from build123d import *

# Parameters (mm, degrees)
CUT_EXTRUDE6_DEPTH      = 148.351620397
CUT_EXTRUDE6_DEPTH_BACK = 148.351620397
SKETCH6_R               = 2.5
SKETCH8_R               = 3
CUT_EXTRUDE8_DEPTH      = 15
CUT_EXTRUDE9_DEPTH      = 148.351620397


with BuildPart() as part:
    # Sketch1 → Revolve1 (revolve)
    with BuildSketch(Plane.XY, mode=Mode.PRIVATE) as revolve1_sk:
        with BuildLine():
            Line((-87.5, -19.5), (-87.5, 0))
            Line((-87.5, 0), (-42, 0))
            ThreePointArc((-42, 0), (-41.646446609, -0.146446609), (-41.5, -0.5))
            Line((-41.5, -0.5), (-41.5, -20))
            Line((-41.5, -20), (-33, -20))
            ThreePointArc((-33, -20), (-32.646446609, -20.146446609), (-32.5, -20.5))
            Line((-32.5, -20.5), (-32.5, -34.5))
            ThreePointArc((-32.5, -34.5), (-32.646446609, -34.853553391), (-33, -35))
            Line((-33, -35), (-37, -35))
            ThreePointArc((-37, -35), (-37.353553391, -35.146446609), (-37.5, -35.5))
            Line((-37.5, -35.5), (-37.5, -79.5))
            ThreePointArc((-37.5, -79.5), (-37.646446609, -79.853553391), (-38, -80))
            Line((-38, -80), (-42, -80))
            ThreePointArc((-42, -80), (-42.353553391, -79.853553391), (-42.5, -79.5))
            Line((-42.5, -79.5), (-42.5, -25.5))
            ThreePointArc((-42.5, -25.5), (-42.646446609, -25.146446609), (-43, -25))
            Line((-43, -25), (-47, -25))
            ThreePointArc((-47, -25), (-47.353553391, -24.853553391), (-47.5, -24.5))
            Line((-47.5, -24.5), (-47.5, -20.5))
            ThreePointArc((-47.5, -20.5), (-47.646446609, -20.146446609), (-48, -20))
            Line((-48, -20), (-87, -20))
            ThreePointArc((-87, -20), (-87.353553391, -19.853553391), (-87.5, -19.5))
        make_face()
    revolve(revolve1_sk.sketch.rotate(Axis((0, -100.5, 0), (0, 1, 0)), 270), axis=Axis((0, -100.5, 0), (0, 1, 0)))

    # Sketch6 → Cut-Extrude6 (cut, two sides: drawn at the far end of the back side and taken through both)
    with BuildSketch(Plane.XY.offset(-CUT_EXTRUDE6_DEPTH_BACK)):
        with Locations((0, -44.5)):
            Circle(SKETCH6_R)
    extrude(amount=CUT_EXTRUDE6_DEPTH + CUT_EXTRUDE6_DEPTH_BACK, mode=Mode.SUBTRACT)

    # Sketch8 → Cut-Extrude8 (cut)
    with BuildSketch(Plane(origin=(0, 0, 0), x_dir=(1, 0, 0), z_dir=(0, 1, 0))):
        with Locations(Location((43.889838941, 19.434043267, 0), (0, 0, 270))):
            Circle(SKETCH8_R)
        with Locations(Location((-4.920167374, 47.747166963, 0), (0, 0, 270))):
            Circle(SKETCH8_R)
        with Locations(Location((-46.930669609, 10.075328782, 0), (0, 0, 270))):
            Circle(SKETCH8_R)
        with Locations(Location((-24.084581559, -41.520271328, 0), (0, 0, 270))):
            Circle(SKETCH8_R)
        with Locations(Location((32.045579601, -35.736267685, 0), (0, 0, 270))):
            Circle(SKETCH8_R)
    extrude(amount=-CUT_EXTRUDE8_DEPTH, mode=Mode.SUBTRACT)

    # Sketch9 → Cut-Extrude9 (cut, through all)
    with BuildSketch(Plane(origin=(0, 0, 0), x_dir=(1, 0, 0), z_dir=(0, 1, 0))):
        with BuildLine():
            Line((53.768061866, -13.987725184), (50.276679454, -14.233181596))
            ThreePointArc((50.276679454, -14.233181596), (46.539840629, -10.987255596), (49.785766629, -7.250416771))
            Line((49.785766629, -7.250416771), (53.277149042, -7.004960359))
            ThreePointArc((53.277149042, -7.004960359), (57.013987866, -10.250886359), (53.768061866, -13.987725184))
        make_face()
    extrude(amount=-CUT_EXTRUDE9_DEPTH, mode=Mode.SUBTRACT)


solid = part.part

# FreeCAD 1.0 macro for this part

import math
import FreeCAD as App
import Part
import Sketcher
from FreeCAD import Vector

doc = App.newDocument("Part")
body = doc.addObject("PartDesign::Body", "Body")

# Sketch on XY plane
sketch1 = doc.addObject("Sketcher::SketchObject", "Sketch")
body.addObject(sketch1)
sketch1.AttachmentSupport = (doc.XY_Plane, [""])
sketch1.MapMode = "FlatFace"
sketch1.addGeometry([
    Part.LineSegment(Vector(-87.5, 0, 0), Vector(-87.5, -19.5, 0)),  # 0
    Part.ArcOfCircle(Part.Circle(Vector(-87, -19.5, 0), Vector(0, 0, 1), 0.5), math.radians(180), math.radians(270)),  # 1
    Part.LineSegment(Vector(-87, -20, 0), Vector(-48, -20, 0)),  # 2
    Part.ArcOfCircle(Part.Circle(Vector(-48, -20.5, 0), Vector(0, 0, 1), 0.5), math.radians(0), math.radians(90)),  # 3
    Part.LineSegment(Vector(-47.5, -20.5, 0), Vector(-47.5, -24.5, 0)),  # 4
    Part.ArcOfCircle(Part.Circle(Vector(-47, -24.5, 0), Vector(0, 0, 1), 0.5), math.radians(180), math.radians(270)),  # 5
    Part.LineSegment(Vector(-47, -25, 0), Vector(-43, -25, 0)),  # 6
    Part.ArcOfCircle(Part.Circle(Vector(-43, -25.5, 0), Vector(0, 0, 1), 0.5), math.radians(0), math.radians(90)),  # 7
    Part.LineSegment(Vector(-42.5, -25.5, 0), Vector(-42.5, -79.5, 0)),  # 8
    Part.ArcOfCircle(Part.Circle(Vector(-42, -79.5, 0), Vector(0, 0, 1), 0.5), math.radians(180), math.radians(270)),  # 9
    Part.LineSegment(Vector(-42, -80, 0), Vector(-38, -80, 0)),  # 10
    Part.ArcOfCircle(Part.Circle(Vector(-38, -79.5, 0), Vector(0, 0, 1), 0.5), math.radians(-90), math.radians(0)),  # 11
    Part.LineSegment(Vector(-37.5, -79.5, 0), Vector(-37.5, -35.5, 0)),  # 12
    Part.ArcOfCircle(Part.Circle(Vector(-37, -35.5, 0), Vector(0, 0, 1), 0.5), math.radians(90), math.radians(180)),  # 13
    Part.LineSegment(Vector(-37, -35, 0), Vector(-33, -35, 0)),  # 14
    Part.ArcOfCircle(Part.Circle(Vector(-33, -34.5, 0), Vector(0, 0, 1), 0.5), math.radians(-90), math.radians(0)),  # 15
    Part.LineSegment(Vector(-32.5, -34.5, 0), Vector(-32.5, -20.5, 0)),  # 16
    Part.ArcOfCircle(Part.Circle(Vector(-33, -20.5, 0), Vector(0, 0, 1), 0.5), math.radians(0), math.radians(90)),  # 17
    Part.LineSegment(Vector(-33, -20, 0), Vector(-41.5, -20, 0)),  # 18
    Part.LineSegment(Vector(-41.5, -20, 0), Vector(-41.5, -0.5, 0)),  # 19
    Part.ArcOfCircle(Part.Circle(Vector(-42, -0.5, 0), Vector(0, 0, 1), 0.5), math.radians(0), math.radians(90)),  # 20
    Part.LineSegment(Vector(-42, 0, 0), Vector(-87.5, 0, 0)),  # 21
], False)
sketch1.addConstraint([
    Sketcher.Constraint("Tangent", 0, 2, 1, 1),
    Sketcher.Constraint("Tangent", 1, 2, 2, 1),
    Sketcher.Constraint("Tangent", 2, 2, 3, 2),
    Sketcher.Constraint("Tangent", 3, 1, 4, 1),
    Sketcher.Constraint("Tangent", 4, 2, 5, 1),
    Sketcher.Constraint("Tangent", 5, 2, 6, 1),
    Sketcher.Constraint("Tangent", 6, 2, 7, 2),
    Sketcher.Constraint("Tangent", 7, 1, 8, 1),
    Sketcher.Constraint("Tangent", 8, 2, 9, 1),
    Sketcher.Constraint("Tangent", 9, 2, 10, 1),
    Sketcher.Constraint("Tangent", 10, 2, 11, 1),
    Sketcher.Constraint("Tangent", 11, 2, 12, 1),
    Sketcher.Constraint("Tangent", 12, 2, 13, 2),
    Sketcher.Constraint("Tangent", 13, 1, 14, 1),
    Sketcher.Constraint("Tangent", 14, 2, 15, 1),
    Sketcher.Constraint("Tangent", 15, 2, 16, 1),
    Sketcher.Constraint("Tangent", 16, 2, 17, 1),
    Sketcher.Constraint("Tangent", 17, 2, 18, 1),
    Sketcher.Constraint("Coincident", 18, 2, 19, 1),
    Sketcher.Constraint("Tangent", 19, 2, 20, 1),
    Sketcher.Constraint("Tangent", 20, 2, 21, 1),
    Sketcher.Constraint("Coincident", 21, 2, 0, 1),
    Sketcher.Constraint("Vertical", 0),
    Sketcher.Constraint("Horizontal", 2),
    Sketcher.Constraint("Vertical", 4),
    Sketcher.Constraint("Horizontal", 6),
    Sketcher.Constraint("Vertical", 8),
    Sketcher.Constraint("Horizontal", 10),
    Sketcher.Constraint("Vertical", 12),
    Sketcher.Constraint("Horizontal", 14),
    Sketcher.Constraint("Vertical", 16),
    Sketcher.Constraint("Horizontal", 18),
    Sketcher.Constraint("Vertical", 19),
    Sketcher.Constraint("Horizontal", 21),
    Sketcher.Constraint("Equal", 1, 3),
    Sketcher.Constraint("Equal", 3, 5),
    Sketcher.Constraint("Equal", 5, 7),
    Sketcher.Constraint("Equal", 7, 9),
    Sketcher.Constraint("Equal", 9, 11),
    Sketcher.Constraint("Equal", 11, 13),
    Sketcher.Constraint("Equal", 13, 15),
    Sketcher.Constraint("Equal", 15, 17),
    Sketcher.Constraint("Equal", 17, 20),
    Sketcher.Constraint("PointOnObject", 20, 2, -1),
    Sketcher.Constraint("Horizontal", 3, 3, 17, 3),
    Sketcher.Constraint("Vertical", 9, 3, 20, 3),
    Sketcher.Constraint("Equal", 6, 10),
    Sketcher.Constraint("Equal", 10, 14),
    Sketcher.Constraint("Equal", 14, 4),
    Sketcher.Constraint("Radius", 1, 0.5),
    Sketcher.Constraint("DistanceX", 2, 1, 2, 2, 39.0),
    Sketcher.Constraint("DistanceX", 6, 1, 6, 2, 4.0),
    Sketcher.Constraint("DistanceY", 8, 2, 8, 1, 54.0),
    Sketcher.Constraint("DistanceY", 12, 1, 12, 2, 44.0),
    Sketcher.Constraint("DistanceY", 0, 2, 0, 1, 19.5),
    Sketcher.Constraint("DistanceX", 1, 3, -1, 1, 87.0),
])
revolution = doc.addObject("PartDesign::Revolution", "Revolution")
body.addObject(revolution)
revolution.Profile = sketch1
revolution.ReferenceAxis = (sketch1, ["V_Axis"])
revolution.Angle = 360

# Sketch on XY plane
sketch2 = doc.addObject("Sketcher::SketchObject", "Sketch001")
body.addObject(sketch2)
sketch2.AttachmentSupport = (doc.XY_Plane, [""])
sketch2.MapMode = "FlatFace"
sketch2.addGeometry(Part.Circle(Vector(0, -44.5, 0), Vector(0, 0, 1), 2.5), False)
sketch2.addConstraint([
    Sketcher.Constraint("PointOnObject", 0, 3, -2),
    Sketcher.Constraint("Diameter", 0, 5.0),
    Sketcher.Constraint("DistanceY", 0, 3, -1, 1, 44.5),
])
pocket1 = doc.addObject("PartDesign::Pocket", "Pocket")
body.addObject(pocket1)
pocket1.Profile = sketch2
pocket1.Type = "ThroughAll"
pocket1.Midplane = True

# Sketch on XZ plane
sketch3 = doc.addObject("Sketcher::SketchObject", "Sketch002")
body.addObject(sketch3)
sketch3.AttachmentSupport = (doc.XZ_Plane, [""])
sketch3.MapMode = "FlatFace"
sketch3.addGeometry([
    Part.Circle(Vector(43.889839, -19.434043, 0), Vector(0, 0, 1), 3),  # 0
    Part.Circle(Vector(-4.920167, -47.747167, 0), Vector(0, 0, 1), 3),  # 1
    Part.Circle(Vector(-46.93067, -10.075329, 0), Vector(0, 0, 1), 3),  # 2
    Part.Circle(Vector(-24.084582, 41.520271, 0), Vector(0, 0, 1), 3),  # 3
    Part.Circle(Vector(32.04558, 35.736268, 0), Vector(0, 0, 1), 3),  # 4
], False)
sketch3.addConstraint([
    Sketcher.Constraint("Equal", 0, 1),
    Sketcher.Constraint("Equal", 1, 2),
    Sketcher.Constraint("Equal", 2, 3),
    Sketcher.Constraint("Equal", 3, 4),
    Sketcher.Constraint("Diameter", 0, 6.0),
    Sketcher.Constraint("DistanceY", 2, 3, 3, 3, 51.5956),
    Sketcher.Constraint("DistanceX", -1, 1, 0, 3, 43.889839),
    Sketcher.Constraint("DistanceX", 2, 3, -1, 1, 46.93067),
    Sketcher.Constraint("DistanceY", 2, 3, -1, 1, 10.075329),
    Sketcher.Constraint("DistanceX", 3, 3, -1, 1, 24.084582),
    Sketcher.Constraint("DistanceX", -1, 1, 4, 3, 32.04558),
    Sketcher.Constraint("DistanceY", 1, 3, 2, 3, 37.671838),
    Sketcher.Constraint("DistanceY", 0, 3, 4, 3, 55.170311),
    Sketcher.Constraint("DistanceY", 0, 3, -1, 1, 19.434043),
    Sketcher.Constraint("DistanceX", 1, 3, -1, 1, 4.920167),
])
pocket2 = doc.addObject("PartDesign::Pocket", "Pocket001")
body.addObject(pocket2)
pocket2.Profile = sketch3
pocket2.Length = 15
pocket2.Reversed = True

# Sketch on XZ plane
sketch4 = doc.addObject("Sketcher::SketchObject", "Sketch003")
body.addObject(sketch4)
sketch4.AttachmentSupport = (doc.XZ_Plane, [""])
sketch4.MapMode = "FlatFace"
sketch4.addGeometry([
    Part.LineSegment(Vector(50.276679, 14.233182, 0), Vector(53.768062, 13.987725, 0)),
    Part.ArcOfCircle(Part.Circle(Vector(53.522605, 10.496343, 0), Vector(0, 0, 1), 3.5), math.radians(-94.021477), math.radians(85.978523)),
    Part.LineSegment(Vector(53.277149, 7.00496, 0), Vector(49.785767, 7.250417, 0)),
    Part.ArcOfCircle(Part.Circle(Vector(50.031223, 10.741799, 0), Vector(0, 0, 1), 3.5), math.radians(85.978523), math.radians(265.978523)),
], False)
sketch4.addConstraint([
    Sketcher.Constraint("Tangent", 0, 2, 1, 2),
    Sketcher.Constraint("Tangent", 1, 1, 2, 1),
    Sketcher.Constraint("Tangent", 2, 2, 3, 2),
    Sketcher.Constraint("Tangent", 3, 1, 0, 1),
    Sketcher.Constraint("Equal", 1, 3),
    Sketcher.Constraint("Radius", 1, 3.5),
    Sketcher.Constraint("Distance", 0, 3.5),
    Sketcher.Constraint("DistanceY", -1, 1, 3, 3, 10.741799),
    Sketcher.Constraint("DistanceX", -1, 1, 0, 2, 53.768062),
    Sketcher.Constraint("DistanceX", -1, 1, 1, 1, 53.277149),
])
pocket3 = doc.addObject("PartDesign::Pocket", "Pocket002")
body.addObject(pocket3)
pocket3.Profile = sketch4
pocket3.Type = "ThroughAll"
pocket3.Reversed = True

doc.recompute()
